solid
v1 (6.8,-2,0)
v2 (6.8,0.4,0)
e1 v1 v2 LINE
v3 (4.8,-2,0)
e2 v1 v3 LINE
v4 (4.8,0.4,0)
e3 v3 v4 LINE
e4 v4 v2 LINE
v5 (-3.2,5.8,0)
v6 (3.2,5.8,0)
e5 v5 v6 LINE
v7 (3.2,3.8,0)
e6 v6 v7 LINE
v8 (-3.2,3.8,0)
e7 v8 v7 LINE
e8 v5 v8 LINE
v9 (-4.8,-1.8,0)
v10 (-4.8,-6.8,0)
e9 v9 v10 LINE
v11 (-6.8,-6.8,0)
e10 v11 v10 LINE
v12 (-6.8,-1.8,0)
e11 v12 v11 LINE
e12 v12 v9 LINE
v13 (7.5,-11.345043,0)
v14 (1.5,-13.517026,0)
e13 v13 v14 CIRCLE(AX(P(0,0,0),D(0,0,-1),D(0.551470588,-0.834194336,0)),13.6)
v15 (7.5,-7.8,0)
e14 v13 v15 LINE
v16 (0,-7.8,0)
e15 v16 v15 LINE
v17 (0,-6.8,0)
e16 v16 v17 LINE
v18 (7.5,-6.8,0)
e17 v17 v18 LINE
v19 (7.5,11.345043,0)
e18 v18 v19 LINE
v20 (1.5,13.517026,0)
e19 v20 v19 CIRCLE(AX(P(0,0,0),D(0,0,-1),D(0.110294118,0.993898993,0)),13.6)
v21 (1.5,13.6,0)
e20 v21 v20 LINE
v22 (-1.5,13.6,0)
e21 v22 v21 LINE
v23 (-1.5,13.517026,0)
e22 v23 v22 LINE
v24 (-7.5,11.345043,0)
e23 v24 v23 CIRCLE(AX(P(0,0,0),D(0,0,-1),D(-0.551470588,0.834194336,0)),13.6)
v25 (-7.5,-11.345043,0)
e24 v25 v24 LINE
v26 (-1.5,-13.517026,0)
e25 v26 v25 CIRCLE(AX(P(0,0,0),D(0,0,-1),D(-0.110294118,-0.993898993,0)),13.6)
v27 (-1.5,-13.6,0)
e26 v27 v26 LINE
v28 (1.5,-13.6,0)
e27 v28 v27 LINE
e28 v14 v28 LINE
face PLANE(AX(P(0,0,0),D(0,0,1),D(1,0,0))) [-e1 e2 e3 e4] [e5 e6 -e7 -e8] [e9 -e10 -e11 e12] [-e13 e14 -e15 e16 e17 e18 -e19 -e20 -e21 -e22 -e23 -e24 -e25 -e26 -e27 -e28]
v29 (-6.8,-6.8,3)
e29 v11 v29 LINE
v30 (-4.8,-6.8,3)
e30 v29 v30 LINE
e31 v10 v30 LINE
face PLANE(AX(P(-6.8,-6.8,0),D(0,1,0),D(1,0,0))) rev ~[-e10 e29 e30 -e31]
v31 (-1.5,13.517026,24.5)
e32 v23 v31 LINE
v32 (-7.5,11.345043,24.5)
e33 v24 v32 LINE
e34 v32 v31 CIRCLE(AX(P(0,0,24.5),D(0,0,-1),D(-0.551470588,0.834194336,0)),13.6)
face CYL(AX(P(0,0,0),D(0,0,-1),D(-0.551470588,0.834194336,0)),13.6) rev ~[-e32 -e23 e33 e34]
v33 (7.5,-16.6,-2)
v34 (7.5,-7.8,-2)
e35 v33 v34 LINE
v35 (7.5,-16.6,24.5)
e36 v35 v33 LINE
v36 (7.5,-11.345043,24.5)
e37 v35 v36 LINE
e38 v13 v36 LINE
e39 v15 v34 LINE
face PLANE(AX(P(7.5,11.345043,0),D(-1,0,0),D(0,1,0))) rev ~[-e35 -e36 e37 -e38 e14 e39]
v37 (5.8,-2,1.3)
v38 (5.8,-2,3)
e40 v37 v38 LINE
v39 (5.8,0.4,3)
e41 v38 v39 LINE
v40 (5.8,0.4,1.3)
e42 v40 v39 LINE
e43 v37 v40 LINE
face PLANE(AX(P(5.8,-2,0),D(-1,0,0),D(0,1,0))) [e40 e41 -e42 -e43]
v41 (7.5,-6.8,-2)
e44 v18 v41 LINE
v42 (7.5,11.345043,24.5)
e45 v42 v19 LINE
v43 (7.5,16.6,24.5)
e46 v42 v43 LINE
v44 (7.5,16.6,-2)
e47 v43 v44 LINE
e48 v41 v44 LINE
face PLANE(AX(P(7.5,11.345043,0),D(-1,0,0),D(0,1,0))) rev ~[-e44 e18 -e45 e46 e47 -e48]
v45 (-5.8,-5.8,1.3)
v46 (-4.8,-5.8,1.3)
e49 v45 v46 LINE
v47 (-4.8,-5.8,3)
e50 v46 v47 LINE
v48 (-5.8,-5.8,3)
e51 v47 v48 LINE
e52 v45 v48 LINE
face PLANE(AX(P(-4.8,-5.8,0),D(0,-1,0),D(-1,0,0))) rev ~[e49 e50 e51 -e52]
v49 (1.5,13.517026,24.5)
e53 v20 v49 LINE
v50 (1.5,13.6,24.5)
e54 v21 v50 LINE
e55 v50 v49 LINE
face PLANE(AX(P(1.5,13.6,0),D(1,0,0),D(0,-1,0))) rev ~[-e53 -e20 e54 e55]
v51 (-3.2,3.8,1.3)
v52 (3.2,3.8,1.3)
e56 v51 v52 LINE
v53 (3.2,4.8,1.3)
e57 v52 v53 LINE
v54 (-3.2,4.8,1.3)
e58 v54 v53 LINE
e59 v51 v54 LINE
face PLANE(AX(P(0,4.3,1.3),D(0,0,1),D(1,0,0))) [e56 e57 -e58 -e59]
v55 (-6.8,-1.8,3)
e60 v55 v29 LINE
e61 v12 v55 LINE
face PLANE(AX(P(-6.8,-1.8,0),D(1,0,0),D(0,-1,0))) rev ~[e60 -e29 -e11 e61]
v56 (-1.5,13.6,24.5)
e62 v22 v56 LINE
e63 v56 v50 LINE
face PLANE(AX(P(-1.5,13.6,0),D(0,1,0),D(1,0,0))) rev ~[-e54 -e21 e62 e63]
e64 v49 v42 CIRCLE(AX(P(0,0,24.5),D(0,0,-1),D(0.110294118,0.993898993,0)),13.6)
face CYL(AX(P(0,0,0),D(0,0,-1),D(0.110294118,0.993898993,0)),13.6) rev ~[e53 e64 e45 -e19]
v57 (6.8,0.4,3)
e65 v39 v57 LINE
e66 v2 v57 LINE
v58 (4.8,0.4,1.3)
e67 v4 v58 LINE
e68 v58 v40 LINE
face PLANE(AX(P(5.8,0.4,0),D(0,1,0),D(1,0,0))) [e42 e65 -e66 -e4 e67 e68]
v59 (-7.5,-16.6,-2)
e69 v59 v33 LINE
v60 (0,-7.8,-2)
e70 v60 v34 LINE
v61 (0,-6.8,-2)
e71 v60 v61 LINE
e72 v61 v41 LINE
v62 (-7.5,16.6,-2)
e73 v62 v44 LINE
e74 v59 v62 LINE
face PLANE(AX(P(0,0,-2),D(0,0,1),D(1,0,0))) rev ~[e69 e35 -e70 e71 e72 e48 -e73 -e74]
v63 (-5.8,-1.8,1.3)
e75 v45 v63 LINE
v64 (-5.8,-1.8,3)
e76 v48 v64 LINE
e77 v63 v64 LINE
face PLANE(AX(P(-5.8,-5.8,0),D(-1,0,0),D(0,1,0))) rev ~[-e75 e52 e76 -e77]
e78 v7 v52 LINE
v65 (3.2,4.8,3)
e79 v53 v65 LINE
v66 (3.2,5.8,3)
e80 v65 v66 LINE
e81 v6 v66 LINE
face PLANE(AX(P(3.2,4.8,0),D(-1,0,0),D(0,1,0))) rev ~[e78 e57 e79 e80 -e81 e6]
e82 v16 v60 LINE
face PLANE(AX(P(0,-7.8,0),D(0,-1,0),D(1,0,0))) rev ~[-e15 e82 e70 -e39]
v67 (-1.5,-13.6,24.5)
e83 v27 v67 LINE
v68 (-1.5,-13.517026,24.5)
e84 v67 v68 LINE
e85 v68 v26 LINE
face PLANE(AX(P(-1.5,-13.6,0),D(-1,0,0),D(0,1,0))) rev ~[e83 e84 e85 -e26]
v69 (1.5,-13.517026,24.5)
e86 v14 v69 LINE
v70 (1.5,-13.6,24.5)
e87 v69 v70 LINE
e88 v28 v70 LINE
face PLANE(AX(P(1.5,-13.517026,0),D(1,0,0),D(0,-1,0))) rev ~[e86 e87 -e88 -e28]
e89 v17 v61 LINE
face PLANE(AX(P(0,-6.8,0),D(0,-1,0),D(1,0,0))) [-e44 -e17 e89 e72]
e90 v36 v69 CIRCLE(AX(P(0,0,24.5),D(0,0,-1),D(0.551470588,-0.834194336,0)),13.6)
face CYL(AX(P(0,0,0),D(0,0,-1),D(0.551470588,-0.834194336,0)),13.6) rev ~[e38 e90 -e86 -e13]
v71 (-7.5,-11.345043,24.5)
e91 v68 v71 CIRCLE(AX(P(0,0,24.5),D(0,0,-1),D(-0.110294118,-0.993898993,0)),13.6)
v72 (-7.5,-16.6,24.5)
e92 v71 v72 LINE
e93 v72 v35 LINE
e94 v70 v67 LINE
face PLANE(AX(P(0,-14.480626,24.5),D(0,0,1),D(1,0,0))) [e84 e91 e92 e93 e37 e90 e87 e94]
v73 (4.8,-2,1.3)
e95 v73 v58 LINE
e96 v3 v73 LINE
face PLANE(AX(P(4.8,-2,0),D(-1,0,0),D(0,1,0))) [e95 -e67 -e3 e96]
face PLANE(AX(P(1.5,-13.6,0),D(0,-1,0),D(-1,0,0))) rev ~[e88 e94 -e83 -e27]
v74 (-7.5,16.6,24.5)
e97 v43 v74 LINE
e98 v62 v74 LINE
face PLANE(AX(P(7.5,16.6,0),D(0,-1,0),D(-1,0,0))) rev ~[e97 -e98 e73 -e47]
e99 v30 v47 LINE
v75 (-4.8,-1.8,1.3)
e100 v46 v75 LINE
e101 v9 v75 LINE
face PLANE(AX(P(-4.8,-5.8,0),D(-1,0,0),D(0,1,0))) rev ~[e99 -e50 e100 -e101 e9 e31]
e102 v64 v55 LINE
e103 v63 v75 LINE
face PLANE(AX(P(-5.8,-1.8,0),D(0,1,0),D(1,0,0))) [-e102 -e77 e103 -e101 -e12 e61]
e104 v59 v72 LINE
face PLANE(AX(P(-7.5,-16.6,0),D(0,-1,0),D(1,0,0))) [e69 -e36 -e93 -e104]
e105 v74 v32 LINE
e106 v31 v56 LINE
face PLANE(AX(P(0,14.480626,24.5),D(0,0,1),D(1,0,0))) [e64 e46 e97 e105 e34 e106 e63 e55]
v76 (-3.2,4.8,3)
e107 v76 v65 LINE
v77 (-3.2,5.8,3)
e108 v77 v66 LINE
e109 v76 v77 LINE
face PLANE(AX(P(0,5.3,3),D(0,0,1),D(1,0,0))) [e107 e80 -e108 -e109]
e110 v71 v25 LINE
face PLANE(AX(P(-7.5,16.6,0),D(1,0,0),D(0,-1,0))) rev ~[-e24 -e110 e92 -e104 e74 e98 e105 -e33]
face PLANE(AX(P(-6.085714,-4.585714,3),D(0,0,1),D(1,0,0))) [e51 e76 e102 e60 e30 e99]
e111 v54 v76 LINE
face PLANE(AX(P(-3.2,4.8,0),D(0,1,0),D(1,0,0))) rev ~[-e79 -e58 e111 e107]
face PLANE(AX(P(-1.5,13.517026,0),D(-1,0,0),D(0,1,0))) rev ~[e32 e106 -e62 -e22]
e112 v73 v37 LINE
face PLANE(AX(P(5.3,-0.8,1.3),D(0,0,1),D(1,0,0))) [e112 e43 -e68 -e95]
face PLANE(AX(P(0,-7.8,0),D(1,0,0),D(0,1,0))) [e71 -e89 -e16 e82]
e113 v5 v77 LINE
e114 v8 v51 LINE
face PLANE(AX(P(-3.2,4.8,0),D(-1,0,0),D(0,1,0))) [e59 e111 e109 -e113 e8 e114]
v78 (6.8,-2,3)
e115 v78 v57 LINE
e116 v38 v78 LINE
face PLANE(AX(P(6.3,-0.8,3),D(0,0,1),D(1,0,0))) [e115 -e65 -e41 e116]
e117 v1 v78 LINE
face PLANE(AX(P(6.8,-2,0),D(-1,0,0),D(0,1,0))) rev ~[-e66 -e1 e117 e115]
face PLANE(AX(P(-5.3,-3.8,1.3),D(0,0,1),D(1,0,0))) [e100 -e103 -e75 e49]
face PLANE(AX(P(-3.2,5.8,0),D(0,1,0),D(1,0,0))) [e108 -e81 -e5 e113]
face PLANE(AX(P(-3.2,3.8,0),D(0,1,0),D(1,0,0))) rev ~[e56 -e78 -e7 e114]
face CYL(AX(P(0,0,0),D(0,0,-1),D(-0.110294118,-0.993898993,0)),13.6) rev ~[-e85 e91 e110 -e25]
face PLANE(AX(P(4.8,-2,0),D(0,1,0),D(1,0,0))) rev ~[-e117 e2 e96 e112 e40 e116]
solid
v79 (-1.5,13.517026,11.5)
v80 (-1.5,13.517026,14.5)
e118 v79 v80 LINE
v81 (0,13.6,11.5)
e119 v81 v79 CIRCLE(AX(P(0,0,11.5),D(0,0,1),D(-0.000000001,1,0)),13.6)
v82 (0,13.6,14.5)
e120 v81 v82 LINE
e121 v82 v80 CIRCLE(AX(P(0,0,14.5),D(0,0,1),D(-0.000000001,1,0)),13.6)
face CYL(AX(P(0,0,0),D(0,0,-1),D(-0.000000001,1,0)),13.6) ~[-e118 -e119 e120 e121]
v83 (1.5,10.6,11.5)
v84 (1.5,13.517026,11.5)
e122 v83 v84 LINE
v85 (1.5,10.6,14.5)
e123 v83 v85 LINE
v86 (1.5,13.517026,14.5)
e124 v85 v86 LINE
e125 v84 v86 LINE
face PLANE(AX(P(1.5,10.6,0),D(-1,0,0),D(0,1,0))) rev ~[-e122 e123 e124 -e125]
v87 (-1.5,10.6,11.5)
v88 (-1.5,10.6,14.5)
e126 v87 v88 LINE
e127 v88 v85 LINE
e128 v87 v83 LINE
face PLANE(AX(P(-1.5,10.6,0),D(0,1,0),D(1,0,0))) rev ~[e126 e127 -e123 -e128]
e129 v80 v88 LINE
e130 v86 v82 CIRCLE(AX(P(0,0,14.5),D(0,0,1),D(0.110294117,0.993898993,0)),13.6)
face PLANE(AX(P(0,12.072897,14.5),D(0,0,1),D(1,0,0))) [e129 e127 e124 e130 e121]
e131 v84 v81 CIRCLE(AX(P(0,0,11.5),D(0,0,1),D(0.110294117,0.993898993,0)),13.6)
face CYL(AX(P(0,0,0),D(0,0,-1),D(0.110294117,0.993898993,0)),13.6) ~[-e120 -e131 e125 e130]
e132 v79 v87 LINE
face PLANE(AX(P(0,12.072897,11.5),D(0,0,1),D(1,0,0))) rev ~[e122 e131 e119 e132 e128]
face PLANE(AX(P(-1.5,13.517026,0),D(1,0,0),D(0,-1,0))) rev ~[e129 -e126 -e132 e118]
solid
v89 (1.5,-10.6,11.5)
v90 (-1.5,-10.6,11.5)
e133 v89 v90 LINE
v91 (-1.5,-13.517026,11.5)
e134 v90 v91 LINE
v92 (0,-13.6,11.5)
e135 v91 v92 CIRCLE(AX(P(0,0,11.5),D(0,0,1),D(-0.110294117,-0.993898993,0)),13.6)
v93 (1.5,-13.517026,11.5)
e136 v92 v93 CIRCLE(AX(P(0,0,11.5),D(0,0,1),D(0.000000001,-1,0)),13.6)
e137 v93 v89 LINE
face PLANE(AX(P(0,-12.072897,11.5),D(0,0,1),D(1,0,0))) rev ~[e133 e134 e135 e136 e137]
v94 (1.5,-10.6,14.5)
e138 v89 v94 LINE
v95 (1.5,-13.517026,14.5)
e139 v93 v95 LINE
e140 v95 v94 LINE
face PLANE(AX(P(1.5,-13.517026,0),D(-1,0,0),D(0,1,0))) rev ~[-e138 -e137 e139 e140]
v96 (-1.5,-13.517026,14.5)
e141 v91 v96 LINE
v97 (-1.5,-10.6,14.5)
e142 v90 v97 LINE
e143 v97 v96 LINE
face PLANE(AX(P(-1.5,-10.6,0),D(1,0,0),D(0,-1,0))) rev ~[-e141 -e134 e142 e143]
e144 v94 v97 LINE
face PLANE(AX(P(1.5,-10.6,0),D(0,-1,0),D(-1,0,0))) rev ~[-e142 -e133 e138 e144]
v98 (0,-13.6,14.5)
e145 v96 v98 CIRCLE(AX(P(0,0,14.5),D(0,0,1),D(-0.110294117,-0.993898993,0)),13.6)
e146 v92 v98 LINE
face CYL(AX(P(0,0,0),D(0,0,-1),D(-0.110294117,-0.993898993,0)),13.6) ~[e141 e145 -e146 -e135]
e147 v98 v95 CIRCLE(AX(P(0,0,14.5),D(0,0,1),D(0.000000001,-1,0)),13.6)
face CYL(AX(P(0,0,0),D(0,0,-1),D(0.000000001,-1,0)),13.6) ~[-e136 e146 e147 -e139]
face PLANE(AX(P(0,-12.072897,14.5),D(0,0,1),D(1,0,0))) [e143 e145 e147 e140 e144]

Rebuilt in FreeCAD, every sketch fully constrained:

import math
import FreeCAD as App
import Part
import Sketcher


def add_polygon(sketch, points):
    """Adds a closed chain of lines whose ends are joined by coincident constraints."""
    first, n = sketch.GeometryCount, len(points)
    for a, b in zip(points, points[1:] + points[:1]):
        sketch.addGeometry(Part.LineSegment(App.Vector(*a, 0), App.Vector(*b, 0)), False)
    for i in range(n):
        sketch.addConstraint(Sketcher.Constraint("Coincident", first + i, 2, first + (i + 1) % n, 1))

doc = App.newDocument("Part")
body = doc.addObject("PartDesign::Body", "Body")

sketch1 = body.newObject("Sketcher::SketchObject", "Sketch")
sketch1.AttachmentSupport = (doc.getObject("XY_Plane"), [""])
sketch1.MapMode = "FlatFace"
sketch1.addGeometry([
    Part.LineSegment(App.Vector(7.5, 16.6, 0), App.Vector(-7.5, 16.6, 0)),
    Part.LineSegment(App.Vector(-7.5, 16.6, 0), App.Vector(-7.5, 11.345043, 0)),
    Part.ArcOfCircle(Part.Circle(App.Vector(0, 0, 0), App.Vector(0, 0, 1), 13.6), math.radians(96.33227), math.radians(123.46796)),
    Part.LineSegment(App.Vector(-1.5, 13.517026, 0), App.Vector(-1.5, 13.6, 0)),
    Part.LineSegment(App.Vector(-1.5, 13.6, 0), App.Vector(1.5, 13.6, 0)),
    Part.LineSegment(App.Vector(1.5, 13.6, 0), App.Vector(1.5, 13.517026, 0)),
    Part.ArcOfCircle(Part.Circle(App.Vector(0, 0, 0), App.Vector(0, 0, 1), 13.6), math.radians(56.53204), math.radians(83.66773)),
    Part.LineSegment(App.Vector(7.5, 11.345043, 0), App.Vector(7.5, 16.6, 0)),
], False)
sketch1.addConstraint([
    Sketcher.Constraint("Coincident", 0, 2, 1, 1),
    Sketcher.Constraint("Coincident", 1, 2, 2, 2),
    Sketcher.Constraint("Coincident", 2, 1, 3, 1),
    Sketcher.Constraint("Coincident", 3, 2, 4, 1),
    Sketcher.Constraint("Coincident", 4, 2, 5, 1),
    Sketcher.Constraint("Coincident", 5, 2, 6, 2),
    Sketcher.Constraint("Coincident", 6, 1, 7, 1),
    Sketcher.Constraint("Coincident", 7, 2, 0, 1),
    Sketcher.Constraint("Horizontal", 0),
    Sketcher.Constraint("Vertical", 1),
    Sketcher.Constraint("Vertical", 3),
    Sketcher.Constraint("Horizontal", 4),
    Sketcher.Constraint("Vertical", 5),
    Sketcher.Constraint("Vertical", 7),
    Sketcher.Constraint("Coincident", 2, 3, -1, 1),
    Sketcher.Constraint("Coincident", 6, 3, -1, 1),
    Sketcher.Constraint("Equal", 2, 6),
    Sketcher.Constraint("Horizontal", 2, 1, 5, 2),
    Sketcher.Constraint("Horizontal", 1, 2, 6, 1),
    Sketcher.Constraint("Radius", 2, 13.6),
    Sketcher.Constraint("DistanceX", 0, 2, 0, 1, 15.0),
    Sketcher.Constraint("DistanceX", 4, 1, 4, 2, 3.0),
    Sketcher.Constraint("DistanceY", 3, 2, 0, 2, 3.0),
    Sketcher.Constraint("DistanceY", -1, 1, 0, 2, 16.6),
])
pad1 = body.newObject("PartDesign::Pad", "Pad")
pad1.Profile = sketch1
pad1.Length = 14.5
body2 = doc.addObject("PartDesign::Body", "Body001")

sketch2 = body2.newObject("Sketcher::SketchObject", "Sketch001")
sketch2.AttachmentSupport = (doc.getObject("XY_Plane001"), [""])
sketch2.MapMode = "FlatFace"
sketch2.addGeometry([
    Part.ArcOfCircle(Part.Circle(App.Vector(0, 0, 0), App.Vector(0, 0, 1), 13.6), math.radians(90), math.radians(96.33227)),
    Part.LineSegment(App.Vector(-1.5, 13.517026, 0), App.Vector(-1.5, 10.6, 0)),
    Part.LineSegment(App.Vector(-1.5, 10.6, 0), App.Vector(1.5, 10.6, 0)),
    Part.LineSegment(App.Vector(1.5, 10.6, 0), App.Vector(1.5, 13.517026, 0)),
    Part.ArcOfCircle(Part.Circle(App.Vector(0, 0, 0), App.Vector(0, 0, 1), 13.6), math.radians(83.66773), math.radians(90)),
], False)
sketch2.addConstraint([
    Sketcher.Constraint("Coincident", 0, 2, 1, 1),
    Sketcher.Constraint("Coincident", 1, 2, 2, 1),
    Sketcher.Constraint("Coincident", 2, 2, 3, 1),
    Sketcher.Constraint("Coincident", 3, 2, 4, 1),
    Sketcher.Constraint("Tangent", 4, 2, 0, 1),
    Sketcher.Constraint("Vertical", 1),
    Sketcher.Constraint("Horizontal", 2),
    Sketcher.Constraint("Vertical", 3),
    Sketcher.Constraint("Coincident", 0, 3, -1, 1),
    Sketcher.Constraint("Equal", 0, 4),
    Sketcher.Constraint("PointOnObject", 4, 2, -2),
    Sketcher.Constraint("Horizontal", 0, 2, 3, 2),
    Sketcher.Constraint("Radius", 0, 13.6),
    Sketcher.Constraint("DistanceX", 2, 1, 2, 2, 3.0),
    Sketcher.Constraint("DistanceY", 1, 2, 4, 2, 3.0),
])
pad2 = body2.newObject("PartDesign::Pad", "Pad001")
pad2.Profile = sketch2
pad2.Length = 14.5
body3 = doc.addObject("PartDesign::Body", "Body002")

sketch3 = body3.newObject("Sketcher::SketchObject", "Sketch002")
sketch3.AttachmentSupport = (doc.getObject("XY_Plane002"), [""])
sketch3.MapMode = "FlatFace"
sketch3.addGeometry([
    Part.LineSegment(App.Vector(-1.5, -10.6, 0), App.Vector(-1.5, -13.517026, 0)),
    Part.ArcOfCircle(Part.Circle(App.Vector(0, 0, 0), App.Vector(0, 0, 1), 13.6), math.radians(-96.33227), math.radians(-90)),
    Part.ArcOfCircle(Part.Circle(App.Vector(0, 0, 0), App.Vector(0, 0, 1), 13.6), math.radians(-90), math.radians(-83.66773)),
    Part.LineSegment(App.Vector(1.5, -13.517026, 0), App.Vector(1.5, -10.6, 0)),
    Part.LineSegment(App.Vector(1.5, -10.6, 0), App.Vector(-1.5, -10.6, 0)),
], False)
sketch3.addConstraint([
    Sketcher.Constraint("Coincident", 0, 2, 1, 1),
    Sketcher.Constraint("Tangent", 1, 2, 2, 1),
    Sketcher.Constraint("Coincident", 2, 2, 3, 1),
    Sketcher.Constraint("Coincident", 3, 2, 4, 1),
    Sketcher.Constraint("Coincident", 4, 2, 0, 1),
    Sketcher.Constraint("Vertical", 0),
    Sketcher.Constraint("Vertical", 3),
    Sketcher.Constraint("Horizontal", 4),
    Sketcher.Constraint("Coincident", 1, 3, -1, 1),
    Sketcher.Constraint("Equal", 1, 2),
    Sketcher.Constraint("PointOnObject", 1, 2, -2),
    Sketcher.Constraint("Horizontal", 0, 2, 2, 2),
    Sketcher.Constraint("Radius", 1, 13.6),
    Sketcher.Constraint("DistanceX", 4, 2, 4, 1, 3.0),
    Sketcher.Constraint("DistanceY", 1, 2, 3, 2, 3.0),
])
pad3 = body3.newObject("PartDesign::Pad", "Pad002")
pad3.Profile = sketch3
pad3.Length = 14.5
body4 = doc.addObject("PartDesign::Body", "Body003")

sketch4 = body4.newObject("Sketcher::SketchObject", "Sketch003")
sketch4.AttachmentSupport = (doc.getObject("XY_Plane003"), [""])
sketch4.MapMode = "FlatFace"
sketch4.addGeometry([
    Part.ArcOfCircle(Part.Circle(App.Vector(0, 0, 0), App.Vector(0, 0, 1), 13.6), math.radians(-123.46796), math.radians(-96.33227)),
    Part.LineSegment(App.Vector(-7.5, -11.345043, 0), App.Vector(-7.5, -16.6, 0)),
    Part.LineSegment(App.Vector(-7.5, -16.6, 0), App.Vector(7.5, -16.6, 0)),
    Part.LineSegment(App.Vector(7.5, -16.6, 0), App.Vector(7.5, -11.345043, 0)),
    Part.ArcOfCircle(Part.Circle(App.Vector(0, 0, 0), App.Vector(0, 0, 1), 13.6), math.radians(-83.66773), math.radians(-56.53204)),
    Part.LineSegment(App.Vector(1.5, -13.517026, 0), App.Vector(1.5, -13.6, 0)),
    Part.LineSegment(App.Vector(1.5, -13.6, 0), App.Vector(-1.5, -13.6, 0)),
    Part.LineSegment(App.Vector(-1.5, -13.6, 0), App.Vector(-1.5, -13.517026, 0)),
], False)
sketch4.addConstraint([
    Sketcher.Constraint("Coincident", 0, 1, 1, 1),
    Sketcher.Constraint("Coincident", 1, 2, 2, 1),
    Sketcher.Constraint("Coincident", 2, 2, 3, 1),
    Sketcher.Constraint("Coincident", 3, 2, 4, 2),
    Sketcher.Constraint("Coincident", 4, 1, 5, 1),
    Sketcher.Constraint("Coincident", 5, 2, 6, 1),
    Sketcher.Constraint("Coincident", 6, 2, 7, 1),
    Sketcher.Constraint("Coincident", 7, 2, 0, 2),
    Sketcher.Constraint("Vertical", 1),
    Sketcher.Constraint("Horizontal", 2),
    Sketcher.Constraint("Vertical", 3),
    Sketcher.Constraint("Vertical", 5),
    Sketcher.Constraint("Horizontal", 6),
    Sketcher.Constraint("Vertical", 7),
    Sketcher.Constraint("Coincident", 0, 3, -1, 1),
    Sketcher.Constraint("Coincident", 4, 3, -1, 1),
    Sketcher.Constraint("Equal", 0, 4),
    Sketcher.Constraint("Horizontal", 0, 1, 3, 2),
    Sketcher.Constraint("Horizontal", 4, 1, 7, 2),
    Sketcher.Constraint("Radius", 0, 13.6),
    Sketcher.Constraint("DistanceX", 2, 1, 2, 2, 15.0),
    Sketcher.Constraint("DistanceX", 6, 2, 6, 1, 3.0),
    Sketcher.Constraint("DistanceY", 2, 2, 5, 2, 3.0),
    Sketcher.Constraint("DistanceY", 1, 2, -1, 1, 16.6),
])
pad4 = body4.newObject("PartDesign::Pad", "Pad003")
pad4.Profile = sketch4
pad4.Length = 14.5
body.AllowCompound = True
doc.recompute()

boolean = body.newObject("PartDesign::Boolean", "Boolean")
boolean.Type = "Fuse"
boolean.addObjects([body4])

sketch5 = body.newObject("Sketcher::SketchObject", "Sketch004")
sketch5.AttachmentSupport = (doc.getObject("XY_Plane"), [""])
sketch5.MapMode = "FlatFace"
add_polygon(sketch5, [(-7.5, 16.6), (-7.5, -16.6), (7.5, -16.6), (7.5, 16.6)])
sketch5.addConstraint([
    Sketcher.Constraint("Vertical", 0),
    Sketcher.Constraint("Horizontal", 1),
    Sketcher.Constraint("Vertical", 2),
    Sketcher.Constraint("Horizontal", 3),
    Sketcher.Constraint("Symmetric", 0, 2, 2, 2, -1, 1),
    Sketcher.Constraint("DistanceX", 1, 1, 1, 2, 15.0),
    Sketcher.Constraint("DistanceY", 0, 2, 0, 1, 33.2),
])
pad5 = body.newObject("PartDesign::Pad", "Pad004")
pad5.Profile = sketch5
pad5.Length = 2
pad5.Reversed = True

sketch6 = body.newObject("Sketcher::SketchObject", "Sketch005")
sketch6.AttachmentSupport = (doc.getObject("XY_Plane"), [""])
sketch6.MapMode = "FlatFace"
sketch6.addGeometry([
    Part.LineSegment(App.Vector(7.5, 16.6, 0), App.Vector(-7.5, 16.6, 0)),
    Part.LineSegment(App.Vector(-7.5, 16.6, 0), App.Vector(-7.5, 11.345043, 0)),
    Part.ArcOfCircle(Part.Circle(App.Vector(0, 0, 0), App.Vector(0, 0, 1), 13.6), math.radians(96.33227), math.radians(123.46796)),
    Part.LineSegment(App.Vector(-1.5, 13.517026, 0), App.Vector(-1.5, 13.6, 0)),
    Part.LineSegment(App.Vector(-1.5, 13.6, 0), App.Vector(1.5, 13.6, 0)),
    Part.LineSegment(App.Vector(1.5, 13.6, 0), App.Vector(1.5, 13.517026, 0)),
    Part.ArcOfCircle(Part.Circle(App.Vector(0, 0, 0), App.Vector(0, 0, 1), 13.6), math.radians(56.53204), math.radians(83.66773)),
    Part.LineSegment(App.Vector(7.5, 11.345043, 0), App.Vector(7.5, 16.6, 0)),
    Part.ArcOfCircle(Part.Circle(App.Vector(0, 0, 0), App.Vector(0, 0, 1), 13.6), math.radians(-123.46796), math.radians(-96.33227)),
    Part.LineSegment(App.Vector(-7.5, -11.345043, 0), App.Vector(-7.5, -16.6, 0)),
    Part.LineSegment(App.Vector(-7.5, -16.6, 0), App.Vector(7.5, -16.6, 0)),
    Part.LineSegment(App.Vector(7.5, -16.6, 0), App.Vector(7.5, -11.345043, 0)),
    Part.ArcOfCircle(Part.Circle(App.Vector(0, 0, 0), App.Vector(0, 0, 1), 13.6), math.radians(-83.66773), math.radians(-56.53204)),
    Part.LineSegment(App.Vector(1.5, -13.517026, 0), App.Vector(1.5, -13.6, 0)),
    Part.LineSegment(App.Vector(1.5, -13.6, 0), App.Vector(-1.5, -13.6, 0)),
    Part.LineSegment(App.Vector(-1.5, -13.6, 0), App.Vector(-1.5, -13.517026, 0)),
], False)
sketch6.addConstraint([
    Sketcher.Constraint("Coincident", 0, 2, 1, 1),
    Sketcher.Constraint("Coincident", 1, 2, 2, 2),
    Sketcher.Constraint("Coincident", 2, 1, 3, 1),
    Sketcher.Constraint("Coincident", 3, 2, 4, 1),
    Sketcher.Constraint("Coincident", 4, 2, 5, 1),
    Sketcher.Constraint("Coincident", 5, 2, 6, 2),
    Sketcher.Constraint("Coincident", 6, 1, 7, 1),
    Sketcher.Constraint("Coincident", 7, 2, 0, 1),
    Sketcher.Constraint("Coincident", 8, 1, 9, 1),
    Sketcher.Constraint("Coincident", 9, 2, 10, 1),
    Sketcher.Constraint("Coincident", 10, 2, 11, 1),
    Sketcher.Constraint("Coincident", 11, 2, 12, 2),
    Sketcher.Constraint("Coincident", 12, 1, 13, 1),
    Sketcher.Constraint("Coincident", 13, 2, 14, 1),
    Sketcher.Constraint("Coincident", 14, 2, 15, 1),
    Sketcher.Constraint("Coincident", 15, 2, 8, 2),
    Sketcher.Constraint("Horizontal", 0),
    Sketcher.Constraint("Vertical", 1),
    Sketcher.Constraint("Vertical", 3),
    Sketcher.Constraint("Horizontal", 4),
    Sketcher.Constraint("Vertical", 5),
    Sketcher.Constraint("Vertical", 7),
    Sketcher.Constraint("Vertical", 9),
    Sketcher.Constraint("Horizontal", 10),
    Sketcher.Constraint("Vertical", 11),
    Sketcher.Constraint("Vertical", 13),
    Sketcher.Constraint("Horizontal", 14),
    Sketcher.Constraint("Vertical", 15),
    Sketcher.Constraint("Coincident", 2, 3, -1, 1),
    Sketcher.Constraint("Coincident", 6, 3, -1, 1),
    Sketcher.Constraint("Coincident", 8, 3, -1, 1),
    Sketcher.Constraint("Coincident", 12, 3, -1, 1),
    Sketcher.Constraint("Equal", 2, 6),
    Sketcher.Constraint("Equal", 6, 8),
    Sketcher.Constraint("Equal", 8, 12),
    Sketcher.Constraint("Symmetric", 7, 2, 9, 2, -1, 1),
    Sketcher.Constraint("Symmetric", 3, 2, 13, 2, -1, 1),
    Sketcher.Constraint("Horizontal", 2, 1, 5, 2),
    Sketcher.Constraint("Horizontal", 1, 2, 6, 1),
    Sketcher.Constraint("Horizontal", 8, 1, 11, 2),
    Sketcher.Constraint("Horizontal", 12, 1, 15, 2),
    Sketcher.Constraint("Radius", 2, 13.6),
    Sketcher.Constraint("DistanceX", 0, 2, 0, 1, 15.0),
    Sketcher.Constraint("DistanceX", 4, 1, 4, 2, 3.0),
    Sketcher.Constraint("DistanceY", 3, 2, 0, 2, 3.0),
    Sketcher.Constraint("DistanceY", -1, 1, 0, 2, 16.6),
])
pad6 = body.newObject("PartDesign::Pad", "Pad005")
pad6.Profile = sketch6
pad6.Length = 24.5

sketch7 = body.newObject("Sketcher::SketchObject", "Sketch006")
sketch7.AttachmentSupport = (doc.getObject("XY_Plane"), [""])
sketch7.MapMode = "FlatFace"
add_polygon(sketch7, [(-5.8, -1.8), (-5.8, -5.8), (-4.8, -5.8), (-4.8, -1.8)])
add_polygon(sketch7, [(-3.2, 4.8), (-3.2, 3.8), (3.2, 3.8), (3.2, 4.8)])
add_polygon(sketch7, [(4.8, 0.4), (4.8, -2), (5.8, -2), (5.8, 0.4)])
sketch7.addConstraint([
    Sketcher.Constraint("Vertical", 0),
    Sketcher.Constraint("Horizontal", 1),
    Sketcher.Constraint("Vertical", 2),
    Sketcher.Constraint("Horizontal", 3),
    Sketcher.Constraint("Vertical", 4),
    Sketcher.Constraint("Horizontal", 5),
    Sketcher.Constraint("Vertical", 6),
    Sketcher.Constraint("Horizontal", 7),
    Sketcher.Constraint("Vertical", 8),
    Sketcher.Constraint("Horizontal", 9),
    Sketcher.Constraint("Vertical", 10),
    Sketcher.Constraint("Horizontal", 11),
    Sketcher.Constraint("Equal", 3, 9),
    Sketcher.Constraint("Equal", 11, 4),
    Sketcher.Constraint("DistanceX", 1, 1, 1, 2, 1.0),
    Sketcher.Constraint("DistanceY", 0, 2, 0, 1, 4.0),
    Sketcher.Constraint("DistanceX", 5, 1, 5, 2, 6.4),
    Sketcher.Constraint("DistanceY", 8, 2, 8, 1, 2.4),
    Sketcher.Constraint("DistanceY", 8, 2, -1, 1, 2.0),
    Sketcher.Constraint("DistanceX", 2, 2, 5, 2, 8.0),
    Sketcher.Constraint("DistanceX", 4, 2, 8, 2, 8.0),
    Sketcher.Constraint("DistanceX", 0, 2, -1, 1, 5.8),
    Sketcher.Constraint("DistanceY", 0, 2, -1, 1, 5.8),
    Sketcher.Constraint("DistanceY", -1, 1, 4, 2, 3.8),
])
pad7 = body.newObject("PartDesign::Pad", "Pad006")
pad7.Profile = sketch7
pad7.Length = 1.3

sketch8 = body.newObject("Sketcher::SketchObject", "Sketch007")
sketch8.AttachmentSupport = (doc.getObject("XY_Plane"), [""])
sketch8.MapMode = "FlatFace"
add_polygon(sketch8, [(-3.2, 5.8), (-3.2, 4.8), (3.2, 4.8), (3.2, 5.8)])
add_polygon(sketch8, [(-5.8, -1.8), (-6.8, -1.8), (-6.8, -6.8), (-4.8, -6.8), (-4.8, -5.8), (-5.8, -5.8)])
add_polygon(sketch8, [(5.8, 0.4), (5.8, -2), (6.8, -2), (6.8, 0.4)])
sketch8.addConstraint([
    Sketcher.Constraint("Vertical", 0),
    Sketcher.Constraint("Horizontal", 1),
    Sketcher.Constraint("Vertical", 2),
    Sketcher.Constraint("Horizontal", 3),
    Sketcher.Constraint("Horizontal", 4),
    Sketcher.Constraint("Vertical", 5),
    Sketcher.Constraint("Horizontal", 6),
    Sketcher.Constraint("Vertical", 7),
    Sketcher.Constraint("Horizontal", 8),
    Sketcher.Constraint("Vertical", 9),
    Sketcher.Constraint("Vertical", 10),
    Sketcher.Constraint("Horizontal", 11),
    Sketcher.Constraint("Vertical", 12),
    Sketcher.Constraint("Horizontal", 13),
    Sketcher.Constraint("Equal", 4, 8),
    Sketcher.Constraint("Equal", 8, 11),
    Sketcher.Constraint("Equal", 13, 0),
    Sketcher.Constraint("Equal", 2, 7),
    Sketcher.Constraint("DistanceX", 4, 2, 4, 1, 1.0),
    Sketcher.Constraint("DistanceY", 5, 2, 5, 1, 5.0),
    Sketcher.Constraint("DistanceX", 1, 1, 1, 2, 6.4),
    Sketcher.Constraint("DistanceY", 10, 2, 10, 1, 2.4),
    Sketcher.Constraint("DistanceY", 10, 2, -1, 1, 2.0),
    Sketcher.Constraint("DistanceX", 4, 2, 1, 2, 10.0),
    Sketcher.Constraint("DistanceX", 0, 2, 10, 2, 9.0),
    Sketcher.Constraint("DistanceX", 0, 2, -1, 1, 3.2),
    Sketcher.Constraint("DistanceY", -1, 1, 0, 2, 4.8),
    Sketcher.Constraint("DistanceY", 4, 2, -1, 1, 1.8),
])
pad8 = body.newObject("PartDesign::Pad", "Pad007")
pad8.Profile = sketch8
pad8.Length = 3

sketch9 = body.newObject("Sketcher::SketchObject", "Sketch008")
sketch9.AttachmentSupport = (doc.getObject("XY_Plane"), [""])
sketch9.MapMode = "FlatFace"
add_polygon(sketch9, [(0, -6.8), (0, -7.8), (7.5, -7.8), (7.5, -6.8)])
sketch9.addConstraint([
    Sketcher.Constraint("Vertical", 0),
    Sketcher.Constraint("Horizontal", 1),
    Sketcher.Constraint("Vertical", 2),
    Sketcher.Constraint("Horizontal", 3),
    Sketcher.Constraint("PointOnObject", 0, 2, -2),
    Sketcher.Constraint("DistanceY", 0, 2, 0, 1, 1.0),
    Sketcher.Constraint("DistanceX", 1, 1, 1, 2, 7.5),
    Sketcher.Constraint("DistanceY", 0, 2, -1, 1, 7.8),
])
pocket1 = body.newObject("PartDesign::Pocket", "Pocket")
pocket1.Profile = sketch9
pocket1.Type = "ThroughAll"
body5 = doc.addObject("PartDesign::Body", "Body004")
body5.AllowCompound = True

sketch10 = body5.newObject("Sketcher::SketchObject", "Sketch009")
sketch10.AttachmentSupport = (doc.getObject("XY_Plane004"), [""])
sketch10.MapMode = "FlatFace"
sketch10.addGeometry([
    Part.LineSegment(App.Vector(-1.5, -10.6, 0), App.Vector(-1.5, -13.517026, 0)),
    Part.ArcOfCircle(Part.Circle(App.Vector(0, 0, 0), App.Vector(0, 0, 1), 13.6), math.radians(-96.33227), math.radians(-90)),
    Part.ArcOfCircle(Part.Circle(App.Vector(0, 0, 0), App.Vector(0, 0, 1), 13.6), math.radians(-90), math.radians(-83.66773)),
    Part.LineSegment(App.Vector(1.5, -13.517026, 0), App.Vector(1.5, -10.6, 0)),
    Part.LineSegment(App.Vector(1.5, -10.6, 0), App.Vector(-1.5, -10.6, 0)),
    Part.ArcOfCircle(Part.Circle(App.Vector(0, 0, 0), App.Vector(0, 0, 1), 13.6), math.radians(90), math.radians(96.33227)),
    Part.LineSegment(App.Vector(-1.5, 13.517026, 0), App.Vector(-1.5, 10.6, 0)),
    Part.LineSegment(App.Vector(-1.5, 10.6, 0), App.Vector(1.5, 10.6, 0)),
    Part.LineSegment(App.Vector(1.5, 10.6, 0), App.Vector(1.5, 13.517026, 0)),
    Part.ArcOfCircle(Part.Circle(App.Vector(0, 0, 0), App.Vector(0, 0, 1), 13.6), math.radians(83.66773), math.radians(90)),
], False)
sketch10.addConstraint([
    Sketcher.Constraint("Coincident", 0, 2, 1, 1),
    Sketcher.Constraint("Tangent", 1, 2, 2, 1),
    Sketcher.Constraint("Coincident", 2, 2, 3, 1),
    Sketcher.Constraint("Coincident", 3, 2, 4, 1),
    Sketcher.Constraint("Coincident", 4, 2, 0, 1),
    Sketcher.Constraint("Coincident", 5, 2, 6, 1),
    Sketcher.Constraint("Coincident", 6, 2, 7, 1),
    Sketcher.Constraint("Coincident", 7, 2, 8, 1),
    Sketcher.Constraint("Coincident", 8, 2, 9, 1),
    Sketcher.Constraint("Tangent", 9, 2, 5, 1),
    Sketcher.Constraint("Vertical", 0),
    Sketcher.Constraint("Vertical", 3),
    Sketcher.Constraint("Horizontal", 4),
    Sketcher.Constraint("Vertical", 6),
    Sketcher.Constraint("Horizontal", 7),
    Sketcher.Constraint("Vertical", 8),
    Sketcher.Constraint("Coincident", 1, 3, -1, 1),
    Sketcher.Constraint("Coincident", 5, 3, -1, 1),
    Sketcher.Constraint("Equal", 1, 2),
    Sketcher.Constraint("Equal", 2, 5),
    Sketcher.Constraint("Equal", 5, 9),
    Sketcher.Constraint("Symmetric", 3, 2, 6, 2, -1, 1),
    Sketcher.Constraint("PointOnObject", 1, 2, -2),
    Sketcher.Constraint("PointOnObject", 9, 2, -2),
    Sketcher.Constraint("Horizontal", 0, 2, 2, 2),
    Sketcher.Constraint("Horizontal", 5, 2, 8, 2),
    Sketcher.Constraint("Radius", 1, 13.6),
    Sketcher.Constraint("DistanceX", 4, 2, 4, 1, 3.0),
    Sketcher.Constraint("DistanceY", 1, 2, 3, 2, 3.0),
])
pad9 = body5.newObject("PartDesign::Pad", "Pad008")
pad9.Profile = sketch10
pad9.Length = 11.5
doc.recompute()

body6 = doc.addObject("PartDesign::Body", "Body005")
body6.BaseFeature = body5
boolean2 = body2.newObject("PartDesign::Boolean", "Boolean001")
boolean2.Type = "Cut"
boolean2.addObjects([body6])
doc.recompute()

boolean3 = body3.newObject("PartDesign::Boolean", "Boolean002")
boolean3.Type = "Cut"
boolean3.addObjects([body5])

doc.recompute()
